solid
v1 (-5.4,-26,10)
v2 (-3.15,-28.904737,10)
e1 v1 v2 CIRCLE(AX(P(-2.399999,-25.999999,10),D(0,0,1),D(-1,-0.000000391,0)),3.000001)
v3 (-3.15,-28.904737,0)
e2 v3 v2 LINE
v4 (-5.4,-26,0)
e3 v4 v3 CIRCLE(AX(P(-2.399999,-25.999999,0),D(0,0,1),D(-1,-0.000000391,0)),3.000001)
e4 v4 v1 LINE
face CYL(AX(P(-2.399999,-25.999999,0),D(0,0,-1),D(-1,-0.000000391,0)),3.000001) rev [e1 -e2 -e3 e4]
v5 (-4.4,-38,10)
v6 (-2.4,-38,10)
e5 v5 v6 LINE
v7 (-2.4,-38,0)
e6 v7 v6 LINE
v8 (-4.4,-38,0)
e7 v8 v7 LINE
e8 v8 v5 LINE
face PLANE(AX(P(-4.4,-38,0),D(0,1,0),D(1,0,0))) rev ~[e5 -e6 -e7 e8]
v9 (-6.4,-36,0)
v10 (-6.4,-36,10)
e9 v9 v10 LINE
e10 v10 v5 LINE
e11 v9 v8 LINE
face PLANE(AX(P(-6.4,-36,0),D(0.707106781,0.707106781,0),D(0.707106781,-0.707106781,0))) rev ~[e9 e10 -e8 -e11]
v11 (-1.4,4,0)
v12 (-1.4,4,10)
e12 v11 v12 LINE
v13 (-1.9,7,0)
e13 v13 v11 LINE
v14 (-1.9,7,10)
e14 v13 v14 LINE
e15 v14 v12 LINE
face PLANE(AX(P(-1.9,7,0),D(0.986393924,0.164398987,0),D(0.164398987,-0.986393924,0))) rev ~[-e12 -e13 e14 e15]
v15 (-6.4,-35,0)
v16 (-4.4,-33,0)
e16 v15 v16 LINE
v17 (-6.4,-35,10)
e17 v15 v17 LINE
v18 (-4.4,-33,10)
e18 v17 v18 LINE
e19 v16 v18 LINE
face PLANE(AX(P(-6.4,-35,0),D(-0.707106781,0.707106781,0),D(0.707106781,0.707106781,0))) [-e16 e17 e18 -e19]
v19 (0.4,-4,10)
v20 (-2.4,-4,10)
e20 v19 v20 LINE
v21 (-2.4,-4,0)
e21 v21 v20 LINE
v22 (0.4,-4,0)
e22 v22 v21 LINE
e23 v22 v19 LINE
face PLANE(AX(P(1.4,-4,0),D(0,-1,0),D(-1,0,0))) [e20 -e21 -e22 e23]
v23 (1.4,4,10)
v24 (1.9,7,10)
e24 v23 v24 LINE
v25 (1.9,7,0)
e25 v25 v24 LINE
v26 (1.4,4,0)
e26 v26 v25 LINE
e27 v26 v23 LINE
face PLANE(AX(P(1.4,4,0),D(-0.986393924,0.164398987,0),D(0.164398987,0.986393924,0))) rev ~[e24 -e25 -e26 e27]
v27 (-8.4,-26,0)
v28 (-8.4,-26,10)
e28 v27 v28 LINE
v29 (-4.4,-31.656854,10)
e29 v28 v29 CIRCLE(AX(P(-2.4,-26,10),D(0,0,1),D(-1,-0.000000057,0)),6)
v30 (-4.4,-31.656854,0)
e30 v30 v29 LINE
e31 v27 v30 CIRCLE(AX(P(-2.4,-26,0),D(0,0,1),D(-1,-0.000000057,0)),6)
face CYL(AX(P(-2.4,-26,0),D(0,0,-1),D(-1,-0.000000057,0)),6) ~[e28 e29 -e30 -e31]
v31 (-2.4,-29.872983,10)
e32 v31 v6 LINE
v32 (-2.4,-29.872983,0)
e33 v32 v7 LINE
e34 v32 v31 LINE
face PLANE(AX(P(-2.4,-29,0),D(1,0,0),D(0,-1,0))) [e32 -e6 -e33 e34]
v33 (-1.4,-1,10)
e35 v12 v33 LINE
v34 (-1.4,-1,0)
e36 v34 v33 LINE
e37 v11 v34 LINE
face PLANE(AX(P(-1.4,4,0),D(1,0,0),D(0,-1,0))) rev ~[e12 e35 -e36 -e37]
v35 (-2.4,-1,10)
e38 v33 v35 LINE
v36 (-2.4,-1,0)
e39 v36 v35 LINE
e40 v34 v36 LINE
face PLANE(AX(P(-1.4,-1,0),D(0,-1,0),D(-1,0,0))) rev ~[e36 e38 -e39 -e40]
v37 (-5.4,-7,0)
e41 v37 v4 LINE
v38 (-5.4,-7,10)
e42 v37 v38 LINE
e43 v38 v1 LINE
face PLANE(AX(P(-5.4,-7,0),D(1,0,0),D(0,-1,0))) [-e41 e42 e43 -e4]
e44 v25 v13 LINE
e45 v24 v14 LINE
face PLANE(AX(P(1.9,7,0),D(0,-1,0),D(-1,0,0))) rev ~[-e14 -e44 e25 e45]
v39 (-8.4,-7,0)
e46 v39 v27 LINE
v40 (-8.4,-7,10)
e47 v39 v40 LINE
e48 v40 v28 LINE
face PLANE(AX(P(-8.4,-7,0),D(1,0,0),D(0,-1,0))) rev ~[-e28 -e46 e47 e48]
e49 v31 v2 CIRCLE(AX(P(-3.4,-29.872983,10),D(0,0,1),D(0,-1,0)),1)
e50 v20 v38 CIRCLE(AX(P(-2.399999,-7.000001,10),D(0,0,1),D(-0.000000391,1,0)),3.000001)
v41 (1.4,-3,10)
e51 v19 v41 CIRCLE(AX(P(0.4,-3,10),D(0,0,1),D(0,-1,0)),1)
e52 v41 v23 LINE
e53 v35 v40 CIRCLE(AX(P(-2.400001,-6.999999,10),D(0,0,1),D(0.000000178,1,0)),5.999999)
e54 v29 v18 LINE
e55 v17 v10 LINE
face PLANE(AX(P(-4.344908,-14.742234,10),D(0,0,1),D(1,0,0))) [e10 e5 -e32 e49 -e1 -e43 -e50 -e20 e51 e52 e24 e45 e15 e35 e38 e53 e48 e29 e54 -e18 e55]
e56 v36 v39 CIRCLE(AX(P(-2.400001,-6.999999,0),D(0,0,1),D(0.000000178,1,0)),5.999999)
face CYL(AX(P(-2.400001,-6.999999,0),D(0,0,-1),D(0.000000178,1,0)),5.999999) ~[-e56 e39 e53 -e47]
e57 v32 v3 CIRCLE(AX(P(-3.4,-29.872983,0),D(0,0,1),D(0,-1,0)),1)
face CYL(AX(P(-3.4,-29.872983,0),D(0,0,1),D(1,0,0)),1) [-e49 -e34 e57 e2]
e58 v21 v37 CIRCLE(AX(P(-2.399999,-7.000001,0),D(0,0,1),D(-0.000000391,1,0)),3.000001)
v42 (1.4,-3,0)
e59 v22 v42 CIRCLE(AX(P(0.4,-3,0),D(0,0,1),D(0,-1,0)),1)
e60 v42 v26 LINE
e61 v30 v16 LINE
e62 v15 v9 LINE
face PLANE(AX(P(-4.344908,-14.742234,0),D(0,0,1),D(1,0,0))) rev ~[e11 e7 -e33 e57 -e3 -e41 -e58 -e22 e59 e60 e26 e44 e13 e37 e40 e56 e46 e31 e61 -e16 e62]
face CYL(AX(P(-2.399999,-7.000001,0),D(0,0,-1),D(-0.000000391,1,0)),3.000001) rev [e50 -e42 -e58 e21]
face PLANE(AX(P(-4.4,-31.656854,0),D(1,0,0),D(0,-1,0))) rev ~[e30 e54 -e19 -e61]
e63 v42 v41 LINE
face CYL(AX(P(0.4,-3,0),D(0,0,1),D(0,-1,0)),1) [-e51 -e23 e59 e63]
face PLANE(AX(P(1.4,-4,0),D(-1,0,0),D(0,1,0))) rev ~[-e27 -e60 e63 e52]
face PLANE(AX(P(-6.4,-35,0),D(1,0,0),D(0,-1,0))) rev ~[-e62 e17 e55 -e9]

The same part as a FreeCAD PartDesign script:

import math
import FreeCAD as App
import Part
import Sketcher
Q = App.Units.Quantity


def edges_at(feature, points):
    """Names of the edges that pass closest to the given points."""
    edges = feature.Shape.Edges
    near = lambda p: min(range(len(edges)), key=lambda i: edges[i].distToShape(Part.Vertex(*p))[0])
    return sorted({f"Edge{near(p) + 1}" for p in points})

doc = App.newDocument("Part")
body = doc.addObject("PartDesign::Body", "Body")

# Sketch on XY plane
sketch1 = body.newObject("Sketcher::SketchObject", "Sketch")
sketch1.AttachmentSupport = (doc.getObject("XY_Plane"), [""])
sketch1.MapMode = "FlatFace"
sketch1.addGeometry(Part.LineSegment(App.Vector(-1.4, 4, 0), App.Vector(-1.4, -1, 0)), False)
sketch1.addGeometry(Part.LineSegment(App.Vector(-1.4, -1, 0), App.Vector(-2.4, -1, 0)), False)
sketch1.addGeometry(Part.ArcOfCircle(Part.Circle(App.Vector(-2.4, -7, 0), App.Vector(0, 0, 1), 6), math.radians(90), math.radians(180)), False)
sketch1.addGeometry(Part.LineSegment(App.Vector(-8.4, -7, 0), App.Vector(-8.4, -26, 0)), False)
sketch1.addGeometry(Part.ArcOfCircle(Part.Circle(App.Vector(-2.4, -26, 0), App.Vector(0, 0, 1), 6), math.radians(-180), math.radians(-109)), False)
sketch1.addGeometry(Part.LineSegment(App.Vector(-4.4, -31.7, 0), App.Vector(-4.4, -33, 0)), False)
sketch1.addGeometry(Part.LineSegment(App.Vector(-4.4, -33, 0), App.Vector(-6.4, -35, 0)), False)
sketch1.addGeometry(Part.LineSegment(App.Vector(-6.4, -35, 0), App.Vector(-6.4, -36, 0)), False)
sketch1.addGeometry(Part.LineSegment(App.Vector(-6.4, -36, 0), App.Vector(-4.4, -38, 0)), False)
sketch1.addGeometry(Part.LineSegment(App.Vector(-4.4, -38, 0), App.Vector(-2.4, -38, 0)), False)
sketch1.addGeometry(Part.LineSegment(App.Vector(-2.4, -38, 0), App.Vector(-2.4, -29, 0)), False)
sketch1.addGeometry(Part.ArcOfCircle(Part.Circle(App.Vector(-2.4, -26, 0), App.Vector(0, 0, 1), 3), math.radians(-180), math.radians(-90)), False)
sketch1.addGeometry(Part.LineSegment(App.Vector(-5.4, -26, 0), App.Vector(-5.4, -7, 0)), False)
sketch1.addGeometry(Part.ArcOfCircle(Part.Circle(App.Vector(-2.4, -7, 0), App.Vector(0, 0, 1), 3), math.radians(90), math.radians(180)), False)
sketch1.addGeometry(Part.LineSegment(App.Vector(-2.4, -4, 0), App.Vector(1.4, -4, 0)), False)
sketch1.addGeometry(Part.LineSegment(App.Vector(1.4, -4, 0), App.Vector(1.4, 4, 0)), False)
sketch1.addGeometry(Part.LineSegment(App.Vector(1.4, 4, 0), App.Vector(1.9, 7, 0)), False)
sketch1.addGeometry(Part.LineSegment(App.Vector(1.9, 7, 0), App.Vector(-1.9, 7, 0)), False)
sketch1.addGeometry(Part.LineSegment(App.Vector(-1.9, 7, 0), App.Vector(-1.4, 4, 0)), False)
sketch1.addConstraint(Sketcher.Constraint("Coincident", 0, 2, 1, 1))
sketch1.addConstraint(Sketcher.Constraint("Tangent", 1, 2, 2, 1))
sketch1.addConstraint(Sketcher.Constraint("Tangent", 2, 2, 3, 1))
sketch1.addConstraint(Sketcher.Constraint("Tangent", 3, 2, 4, 1))
sketch1.addConstraint(Sketcher.Constraint("Coincident", 4, 2, 5, 1))
sketch1.addConstraint(Sketcher.Constraint("Coincident", 5, 2, 6, 1))
sketch1.addConstraint(Sketcher.Constraint("Coincident", 6, 2, 7, 1))
sketch1.addConstraint(Sketcher.Constraint("Coincident", 7, 2, 8, 1))
sketch1.addConstraint(Sketcher.Constraint("Coincident", 8, 2, 9, 1))
sketch1.addConstraint(Sketcher.Constraint("Coincident", 9, 2, 10, 1))
sketch1.addConstraint(Sketcher.Constraint("Coincident", 10, 2, 11, 2))
sketch1.addConstraint(Sketcher.Constraint("Tangent", 11, 1, 12, 1))
sketch1.addConstraint(Sketcher.Constraint("Tangent", 12, 2, 13, 2))
sketch1.addConstraint(Sketcher.Constraint("Tangent", 13, 1, 14, 1))
sketch1.addConstraint(Sketcher.Constraint("Coincident", 14, 2, 15, 1))
sketch1.addConstraint(Sketcher.Constraint("Coincident", 15, 2, 16, 1))
sketch1.addConstraint(Sketcher.Constraint("Coincident", 16, 2, 17, 1))
sketch1.addConstraint(Sketcher.Constraint("Coincident", 17, 2, 18, 1))
sketch1.addConstraint(Sketcher.Constraint("Coincident", 18, 2, 0, 1))
sketch1.addConstraint(Sketcher.Constraint("Vertical", 0))
sketch1.addConstraint(Sketcher.Constraint("Horizontal", 1))
sketch1.addConstraint(Sketcher.Constraint("Vertical", 3))
sketch1.addConstraint(Sketcher.Constraint("Vertical", 5))
sketch1.addConstraint(Sketcher.Constraint("Vertical", 7))
sketch1.addConstraint(Sketcher.Constraint("Horizontal", 9))
sketch1.addConstraint(Sketcher.Constraint("Vertical", 10))
sketch1.addConstraint(Sketcher.Constraint("Vertical", 12))
sketch1.addConstraint(Sketcher.Constraint("Horizontal", 14))
sketch1.addConstraint(Sketcher.Constraint("Vertical", 15))
sketch1.addConstraint(Sketcher.Constraint("Horizontal", 17))
sketch1.addConstraint(Sketcher.Constraint("Coincident", 11, 3, 4, 3))
sketch1.addConstraint(Sketcher.Constraint("Coincident", 13, 3, 2, 3))
sketch1.addConstraint(Sketcher.Constraint("Equal", 2, 4))
sketch1.addConstraint(Sketcher.Constraint("Symmetric", 14, 2, 18, 2, -1, 1))
sketch1.addConstraint(Sketcher.Constraint("Perpendicular", 6, 8))
sketch1.addConstraint(Sketcher.Constraint("Horizontal", 15, 2, 18, 2))
sketch1.addConstraint(Sketcher.Constraint("Vertical", 5, 2, 8, 2))
sketch1.addConstraint(Sketcher.Constraint("Vertical", 1, 2, 9, 2))
sketch1.addConstraint(Sketcher.Constraint("Equal", 14, 17))
sketch1.addConstraint(Sketcher.Constraint("Equal", 1, 7))
sketch1.addConstraint(Sketcher.Constraint("Equal", 6, 8))
sketch1.addConstraint(Sketcher.Constraint("Equal", 16, 18))
sketch1.addConstraint(Sketcher.Constraint("Radius", 2, Q("5.999999 mm")))
sketch1.addConstraint(Sketcher.Constraint("Radius", 11, Q("3.000001 mm")))
sketch1.addConstraint(Sketcher.Constraint("DistanceX", 1, 2, 1, 1, Q("1 mm")))
sketch1.addConstraint(Sketcher.Constraint("DistanceX", 9, 1, 9, 2, Q("2 mm")))
sketch1.addConstraint(Sketcher.Constraint("DistanceY", 0, 2, 0, 1, Q("5 mm")))
sketch1.addConstraint(Sketcher.Constraint("DistanceY", 3, 2, 3, 1, Q("19 mm")))
sketch1.addConstraint(Sketcher.Constraint("DistanceY", 10, 1, 10, 2, Q("9 mm")))
sketch1.addConstraint(Sketcher.Constraint("DistanceX", 14, 1, 14, 2, Q("3.8 mm")))
sketch1.addConstraint(Sketcher.Constraint("DistanceY", 5, 2, -1, 1, Q("33 mm")))
sketch1.addConstraint(Sketcher.Constraint("DistanceY", -1, 1, 16, 2, Q("7 mm")))
pad1 = body.newObject("PartDesign::Pad", "Pad")
pad1.Profile = sketch1
pad1.Length = 10
doc.recompute()

fillet = body.newObject("PartDesign::Fillet", "Fillet")
fillet.Base = (pad1, edges_at(pad1, [(1.4, -4, 5), (-2.4, -29, 5)]))
fillet.Radius = 1

doc.recompute()
